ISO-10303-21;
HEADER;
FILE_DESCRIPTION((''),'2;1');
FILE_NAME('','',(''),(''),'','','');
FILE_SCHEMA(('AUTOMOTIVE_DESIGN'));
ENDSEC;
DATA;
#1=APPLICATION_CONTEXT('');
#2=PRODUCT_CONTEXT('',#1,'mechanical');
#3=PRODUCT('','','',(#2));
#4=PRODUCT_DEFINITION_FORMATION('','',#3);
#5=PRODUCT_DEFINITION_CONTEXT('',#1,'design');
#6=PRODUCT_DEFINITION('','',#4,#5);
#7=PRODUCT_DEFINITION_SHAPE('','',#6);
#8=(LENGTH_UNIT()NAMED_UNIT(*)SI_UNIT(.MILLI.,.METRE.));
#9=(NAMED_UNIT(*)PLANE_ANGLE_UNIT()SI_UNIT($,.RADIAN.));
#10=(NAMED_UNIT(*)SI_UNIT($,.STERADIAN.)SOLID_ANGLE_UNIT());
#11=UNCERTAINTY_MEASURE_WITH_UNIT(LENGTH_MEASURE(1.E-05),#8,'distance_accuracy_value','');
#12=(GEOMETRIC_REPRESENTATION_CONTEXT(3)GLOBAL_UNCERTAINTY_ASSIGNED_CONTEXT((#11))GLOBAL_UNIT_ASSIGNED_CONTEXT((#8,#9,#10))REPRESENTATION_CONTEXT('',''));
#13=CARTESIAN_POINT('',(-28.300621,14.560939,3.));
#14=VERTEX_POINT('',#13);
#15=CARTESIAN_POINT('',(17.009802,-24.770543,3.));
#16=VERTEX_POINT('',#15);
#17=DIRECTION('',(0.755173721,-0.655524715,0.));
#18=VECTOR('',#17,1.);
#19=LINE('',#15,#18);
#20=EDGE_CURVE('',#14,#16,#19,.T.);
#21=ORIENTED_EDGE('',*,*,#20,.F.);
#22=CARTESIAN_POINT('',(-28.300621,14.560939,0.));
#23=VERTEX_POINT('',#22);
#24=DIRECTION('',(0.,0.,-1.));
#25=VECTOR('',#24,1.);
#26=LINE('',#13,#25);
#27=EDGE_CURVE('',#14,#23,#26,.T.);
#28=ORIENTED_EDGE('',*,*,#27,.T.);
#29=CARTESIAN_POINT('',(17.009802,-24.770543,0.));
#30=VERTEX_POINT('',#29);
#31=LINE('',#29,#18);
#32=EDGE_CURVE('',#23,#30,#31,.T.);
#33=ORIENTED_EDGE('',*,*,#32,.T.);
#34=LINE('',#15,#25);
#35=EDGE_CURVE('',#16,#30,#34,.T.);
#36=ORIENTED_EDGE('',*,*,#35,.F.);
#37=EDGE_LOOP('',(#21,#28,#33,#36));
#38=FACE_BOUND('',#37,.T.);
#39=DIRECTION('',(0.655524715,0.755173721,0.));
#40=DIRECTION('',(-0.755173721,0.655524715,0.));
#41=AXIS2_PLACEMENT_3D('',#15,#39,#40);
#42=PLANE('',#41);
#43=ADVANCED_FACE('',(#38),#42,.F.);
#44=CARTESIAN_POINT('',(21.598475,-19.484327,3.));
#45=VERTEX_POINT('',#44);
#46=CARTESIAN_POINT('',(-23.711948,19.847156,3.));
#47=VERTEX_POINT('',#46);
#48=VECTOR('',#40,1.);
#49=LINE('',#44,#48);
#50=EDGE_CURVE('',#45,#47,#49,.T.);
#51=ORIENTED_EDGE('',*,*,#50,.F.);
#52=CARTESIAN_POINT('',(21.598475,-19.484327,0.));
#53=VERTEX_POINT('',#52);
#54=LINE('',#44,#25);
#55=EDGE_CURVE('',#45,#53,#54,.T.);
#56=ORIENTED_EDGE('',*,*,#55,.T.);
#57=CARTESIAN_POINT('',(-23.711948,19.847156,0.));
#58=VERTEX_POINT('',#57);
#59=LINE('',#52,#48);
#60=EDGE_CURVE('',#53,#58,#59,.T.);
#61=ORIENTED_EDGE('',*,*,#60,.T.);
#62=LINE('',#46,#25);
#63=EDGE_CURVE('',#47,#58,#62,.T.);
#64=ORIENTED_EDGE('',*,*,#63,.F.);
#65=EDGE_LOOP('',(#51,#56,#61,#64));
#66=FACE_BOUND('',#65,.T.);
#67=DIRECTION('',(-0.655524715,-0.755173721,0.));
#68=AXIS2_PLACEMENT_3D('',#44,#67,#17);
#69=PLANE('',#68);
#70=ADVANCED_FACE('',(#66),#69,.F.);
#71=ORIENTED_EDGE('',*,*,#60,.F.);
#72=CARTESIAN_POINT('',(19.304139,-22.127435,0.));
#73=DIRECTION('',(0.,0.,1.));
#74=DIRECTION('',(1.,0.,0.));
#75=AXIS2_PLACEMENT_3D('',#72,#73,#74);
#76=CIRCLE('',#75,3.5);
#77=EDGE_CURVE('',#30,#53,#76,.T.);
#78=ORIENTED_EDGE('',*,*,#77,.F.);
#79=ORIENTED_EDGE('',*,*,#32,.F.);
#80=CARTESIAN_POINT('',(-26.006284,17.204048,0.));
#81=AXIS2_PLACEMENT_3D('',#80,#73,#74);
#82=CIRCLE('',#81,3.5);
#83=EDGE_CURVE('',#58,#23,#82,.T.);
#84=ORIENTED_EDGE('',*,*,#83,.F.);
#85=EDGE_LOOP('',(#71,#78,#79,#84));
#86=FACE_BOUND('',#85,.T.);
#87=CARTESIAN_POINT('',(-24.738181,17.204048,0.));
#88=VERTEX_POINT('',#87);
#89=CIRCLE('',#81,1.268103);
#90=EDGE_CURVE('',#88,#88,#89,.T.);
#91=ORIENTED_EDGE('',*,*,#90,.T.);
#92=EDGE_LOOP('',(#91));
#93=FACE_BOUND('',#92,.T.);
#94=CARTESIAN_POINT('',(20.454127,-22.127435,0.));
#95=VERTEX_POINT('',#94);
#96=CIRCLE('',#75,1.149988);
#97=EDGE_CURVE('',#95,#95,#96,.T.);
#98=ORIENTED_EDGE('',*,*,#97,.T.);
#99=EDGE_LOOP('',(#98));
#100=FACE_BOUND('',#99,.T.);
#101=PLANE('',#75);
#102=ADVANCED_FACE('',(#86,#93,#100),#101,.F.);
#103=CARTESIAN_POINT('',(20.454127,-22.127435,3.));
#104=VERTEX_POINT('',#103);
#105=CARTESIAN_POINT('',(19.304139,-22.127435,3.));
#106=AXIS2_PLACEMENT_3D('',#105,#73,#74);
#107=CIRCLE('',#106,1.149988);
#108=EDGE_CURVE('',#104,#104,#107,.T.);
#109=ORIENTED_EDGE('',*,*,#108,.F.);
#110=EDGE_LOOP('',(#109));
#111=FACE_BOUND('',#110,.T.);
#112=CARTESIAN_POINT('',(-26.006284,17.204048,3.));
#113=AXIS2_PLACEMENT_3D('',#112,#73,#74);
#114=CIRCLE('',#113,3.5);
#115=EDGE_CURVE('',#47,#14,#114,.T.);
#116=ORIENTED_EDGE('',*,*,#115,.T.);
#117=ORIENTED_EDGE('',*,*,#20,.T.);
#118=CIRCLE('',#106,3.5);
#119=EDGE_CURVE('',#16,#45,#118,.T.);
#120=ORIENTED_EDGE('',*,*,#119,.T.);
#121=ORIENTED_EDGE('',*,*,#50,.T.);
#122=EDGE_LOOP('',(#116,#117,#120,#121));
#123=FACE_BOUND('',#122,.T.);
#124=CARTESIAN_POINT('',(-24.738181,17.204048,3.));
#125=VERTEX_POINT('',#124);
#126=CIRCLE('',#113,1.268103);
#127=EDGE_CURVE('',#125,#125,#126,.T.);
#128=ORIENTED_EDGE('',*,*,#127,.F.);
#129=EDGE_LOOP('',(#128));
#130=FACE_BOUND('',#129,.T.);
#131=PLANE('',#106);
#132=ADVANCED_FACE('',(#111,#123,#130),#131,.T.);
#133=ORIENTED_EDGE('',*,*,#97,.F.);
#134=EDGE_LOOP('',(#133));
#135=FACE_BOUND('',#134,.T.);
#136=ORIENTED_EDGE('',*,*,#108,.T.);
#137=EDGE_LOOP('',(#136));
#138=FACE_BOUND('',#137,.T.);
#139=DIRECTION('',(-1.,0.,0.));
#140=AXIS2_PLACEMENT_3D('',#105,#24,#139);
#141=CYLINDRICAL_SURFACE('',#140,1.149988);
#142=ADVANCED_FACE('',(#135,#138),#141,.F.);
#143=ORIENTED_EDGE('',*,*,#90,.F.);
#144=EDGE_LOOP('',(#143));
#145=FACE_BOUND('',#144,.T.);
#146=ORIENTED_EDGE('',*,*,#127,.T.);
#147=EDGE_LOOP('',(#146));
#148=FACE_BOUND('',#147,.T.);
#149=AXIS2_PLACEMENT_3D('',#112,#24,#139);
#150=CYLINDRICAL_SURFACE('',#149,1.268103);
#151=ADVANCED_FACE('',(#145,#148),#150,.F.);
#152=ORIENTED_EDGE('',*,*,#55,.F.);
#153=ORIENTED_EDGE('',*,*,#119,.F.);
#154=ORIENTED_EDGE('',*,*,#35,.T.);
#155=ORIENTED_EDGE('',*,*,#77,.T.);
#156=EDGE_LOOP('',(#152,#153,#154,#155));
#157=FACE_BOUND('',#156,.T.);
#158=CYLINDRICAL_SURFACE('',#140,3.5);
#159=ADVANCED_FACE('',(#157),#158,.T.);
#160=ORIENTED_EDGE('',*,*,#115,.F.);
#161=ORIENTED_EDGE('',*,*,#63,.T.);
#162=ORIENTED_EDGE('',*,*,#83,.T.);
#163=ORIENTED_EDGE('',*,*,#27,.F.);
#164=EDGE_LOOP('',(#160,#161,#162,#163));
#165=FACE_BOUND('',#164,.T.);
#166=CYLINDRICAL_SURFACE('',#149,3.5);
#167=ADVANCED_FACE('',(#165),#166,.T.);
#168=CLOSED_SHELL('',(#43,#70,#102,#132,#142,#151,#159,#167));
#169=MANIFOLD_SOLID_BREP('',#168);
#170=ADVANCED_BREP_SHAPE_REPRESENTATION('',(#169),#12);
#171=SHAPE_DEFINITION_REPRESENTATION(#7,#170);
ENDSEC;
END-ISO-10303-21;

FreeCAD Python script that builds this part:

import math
import FreeCAD as App
import Part
import Sketcher
from FreeCAD import Vector
Q = App.Units.Quantity

doc = App.newDocument("Part")
body = doc.addObject("PartDesign::Body", "Body")

# Sketch on XY plane
sketch1 = doc.addObject("Sketcher::SketchObject", "Sketch")
body.addObject(sketch1)
sketch1.AttachmentSupport = (doc.XY_Plane, [""])
sketch1.MapMode = "FlatFace"
sketch1.addGeometry([
    Part.LineSegment(Vector(-28.3, 14.6, 0), Vector(17, -24.8, 0)),  # 0
    Part.ArcOfCircle(Part.Circle(Vector(19.3, -22.1, 0), Vector(0, 0, 1), 3.5), math.radians(-131), math.radians(49)),  # 1
    Part.LineSegment(Vector(21.6, -19.5, 0), Vector(-23.7, 19.8, 0)),  # 2
    Part.ArcOfCircle(Part.Circle(Vector(-26, 17.2, 0), Vector(0, 0, 1), 3.5), math.radians(49), math.radians(229)),  # 3
    Part.Circle(Vector(19.3, -22.1, 0), Vector(0, 0, 1), 1.1),  # 4
    Part.Circle(Vector(-26, 17.2, 0), Vector(0, 0, 1), 1.3),  # 5
], False)
sketch1.addConstraint([
    Sketcher.Constraint("Tangent", 0, 2, 1, 1),
    Sketcher.Constraint("Tangent", 1, 2, 2, 1),
    Sketcher.Constraint("Tangent", 2, 2, 3, 1),
    Sketcher.Constraint("Tangent", 3, 2, 0, 1),
    Sketcher.Constraint("Coincident", 4, 3, 1, 3),
    Sketcher.Constraint("Coincident", 5, 3, 3, 3),
    Sketcher.Constraint("Equal", 1, 3),
    Sketcher.Constraint("Radius", 1, Q("3.5 mm")),
    Sketcher.Constraint("Distance", 0, Q("60 mm")),
    Sketcher.Constraint("Diameter", 4, Q("2.299976 mm")),
    Sketcher.Constraint("Diameter", 5, Q("2.536206 mm")),
    Sketcher.Constraint("DistanceX", -1, 1, 1, 3, Q("19.304139 mm")),
    Sketcher.Constraint("DistanceX", 3, 2, -1, 1, Q("28.300621 mm")),
    Sketcher.Constraint("DistanceY", -1, 1, 3, 2, Q("14.560939 mm")),
])
pad1 = doc.addObject("PartDesign::Pad", "Pad")
body.addObject(pad1)
pad1.Profile = sketch1
pad1.Length = 3

doc.recompute()
